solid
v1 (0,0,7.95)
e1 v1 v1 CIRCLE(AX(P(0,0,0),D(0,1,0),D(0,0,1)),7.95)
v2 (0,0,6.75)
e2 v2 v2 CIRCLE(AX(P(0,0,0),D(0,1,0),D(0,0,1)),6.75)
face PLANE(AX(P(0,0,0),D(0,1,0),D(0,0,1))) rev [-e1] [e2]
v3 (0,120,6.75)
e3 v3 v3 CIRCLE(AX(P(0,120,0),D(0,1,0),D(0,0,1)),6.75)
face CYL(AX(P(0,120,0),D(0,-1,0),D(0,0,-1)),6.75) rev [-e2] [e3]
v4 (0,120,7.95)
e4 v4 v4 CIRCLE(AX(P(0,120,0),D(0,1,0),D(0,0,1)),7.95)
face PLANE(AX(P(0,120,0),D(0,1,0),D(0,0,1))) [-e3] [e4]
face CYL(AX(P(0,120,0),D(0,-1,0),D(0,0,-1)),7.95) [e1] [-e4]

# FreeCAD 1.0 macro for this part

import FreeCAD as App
import Part
import Sketcher
from FreeCAD import Vector

doc = App.newDocument("Part")
params = doc.addObject("Spreadsheet::Sheet", "Params")
for row, (alias, value) in enumerate([
    ("sketch1_diameter", "15.9 mm"),
    ("sketch1_diameter2", "13.5 mm"),
    ("pad1_length", "120 mm"),
], start=1):
    params.set(f"A{row}", alias)
    params.set(f"B{row}", "=" + value)
    params.setAlias(f"B{row}", alias)

body = doc.addObject("PartDesign::Body", "Body")

# Sketch on XZ plane
sketch1 = doc.addObject("Sketcher::SketchObject", "Sketch")
body.addObject(sketch1)
sketch1.AttachmentSupport = (doc.XZ_Plane, [""])
sketch1.MapMode = "FlatFace"
sketch1.addGeometry(Part.Circle(Vector(0, 0, 0), Vector(0, 0, 1), 8), False)
sketch1.addGeometry(Part.Circle(Vector(0, 0, 0), Vector(0, 0, 1), 7), False)
sketch1.addConstraint(Sketcher.Constraint("Coincident", 0, 3, -1, 1))
sketch1.addConstraint(Sketcher.Constraint("Coincident", 1, 3, -1, 1))
sketch1.addConstraint(Sketcher.Constraint("Diameter", 0, 15.9))
sketch1.addConstraint(Sketcher.Constraint("Diameter", 1, 13.5))
sketch1.setExpression("Constraints[2]", "Params.sketch1_diameter")
sketch1.setExpression("Constraints[3]", "Params.sketch1_diameter2")
pad1 = doc.addObject("PartDesign::Pad", "Pad")
body.addObject(pad1)
pad1.Profile = sketch1
pad1.setExpression("Length", "Params.pad1_length")
pad1.Reversed = True

doc.recompute()
